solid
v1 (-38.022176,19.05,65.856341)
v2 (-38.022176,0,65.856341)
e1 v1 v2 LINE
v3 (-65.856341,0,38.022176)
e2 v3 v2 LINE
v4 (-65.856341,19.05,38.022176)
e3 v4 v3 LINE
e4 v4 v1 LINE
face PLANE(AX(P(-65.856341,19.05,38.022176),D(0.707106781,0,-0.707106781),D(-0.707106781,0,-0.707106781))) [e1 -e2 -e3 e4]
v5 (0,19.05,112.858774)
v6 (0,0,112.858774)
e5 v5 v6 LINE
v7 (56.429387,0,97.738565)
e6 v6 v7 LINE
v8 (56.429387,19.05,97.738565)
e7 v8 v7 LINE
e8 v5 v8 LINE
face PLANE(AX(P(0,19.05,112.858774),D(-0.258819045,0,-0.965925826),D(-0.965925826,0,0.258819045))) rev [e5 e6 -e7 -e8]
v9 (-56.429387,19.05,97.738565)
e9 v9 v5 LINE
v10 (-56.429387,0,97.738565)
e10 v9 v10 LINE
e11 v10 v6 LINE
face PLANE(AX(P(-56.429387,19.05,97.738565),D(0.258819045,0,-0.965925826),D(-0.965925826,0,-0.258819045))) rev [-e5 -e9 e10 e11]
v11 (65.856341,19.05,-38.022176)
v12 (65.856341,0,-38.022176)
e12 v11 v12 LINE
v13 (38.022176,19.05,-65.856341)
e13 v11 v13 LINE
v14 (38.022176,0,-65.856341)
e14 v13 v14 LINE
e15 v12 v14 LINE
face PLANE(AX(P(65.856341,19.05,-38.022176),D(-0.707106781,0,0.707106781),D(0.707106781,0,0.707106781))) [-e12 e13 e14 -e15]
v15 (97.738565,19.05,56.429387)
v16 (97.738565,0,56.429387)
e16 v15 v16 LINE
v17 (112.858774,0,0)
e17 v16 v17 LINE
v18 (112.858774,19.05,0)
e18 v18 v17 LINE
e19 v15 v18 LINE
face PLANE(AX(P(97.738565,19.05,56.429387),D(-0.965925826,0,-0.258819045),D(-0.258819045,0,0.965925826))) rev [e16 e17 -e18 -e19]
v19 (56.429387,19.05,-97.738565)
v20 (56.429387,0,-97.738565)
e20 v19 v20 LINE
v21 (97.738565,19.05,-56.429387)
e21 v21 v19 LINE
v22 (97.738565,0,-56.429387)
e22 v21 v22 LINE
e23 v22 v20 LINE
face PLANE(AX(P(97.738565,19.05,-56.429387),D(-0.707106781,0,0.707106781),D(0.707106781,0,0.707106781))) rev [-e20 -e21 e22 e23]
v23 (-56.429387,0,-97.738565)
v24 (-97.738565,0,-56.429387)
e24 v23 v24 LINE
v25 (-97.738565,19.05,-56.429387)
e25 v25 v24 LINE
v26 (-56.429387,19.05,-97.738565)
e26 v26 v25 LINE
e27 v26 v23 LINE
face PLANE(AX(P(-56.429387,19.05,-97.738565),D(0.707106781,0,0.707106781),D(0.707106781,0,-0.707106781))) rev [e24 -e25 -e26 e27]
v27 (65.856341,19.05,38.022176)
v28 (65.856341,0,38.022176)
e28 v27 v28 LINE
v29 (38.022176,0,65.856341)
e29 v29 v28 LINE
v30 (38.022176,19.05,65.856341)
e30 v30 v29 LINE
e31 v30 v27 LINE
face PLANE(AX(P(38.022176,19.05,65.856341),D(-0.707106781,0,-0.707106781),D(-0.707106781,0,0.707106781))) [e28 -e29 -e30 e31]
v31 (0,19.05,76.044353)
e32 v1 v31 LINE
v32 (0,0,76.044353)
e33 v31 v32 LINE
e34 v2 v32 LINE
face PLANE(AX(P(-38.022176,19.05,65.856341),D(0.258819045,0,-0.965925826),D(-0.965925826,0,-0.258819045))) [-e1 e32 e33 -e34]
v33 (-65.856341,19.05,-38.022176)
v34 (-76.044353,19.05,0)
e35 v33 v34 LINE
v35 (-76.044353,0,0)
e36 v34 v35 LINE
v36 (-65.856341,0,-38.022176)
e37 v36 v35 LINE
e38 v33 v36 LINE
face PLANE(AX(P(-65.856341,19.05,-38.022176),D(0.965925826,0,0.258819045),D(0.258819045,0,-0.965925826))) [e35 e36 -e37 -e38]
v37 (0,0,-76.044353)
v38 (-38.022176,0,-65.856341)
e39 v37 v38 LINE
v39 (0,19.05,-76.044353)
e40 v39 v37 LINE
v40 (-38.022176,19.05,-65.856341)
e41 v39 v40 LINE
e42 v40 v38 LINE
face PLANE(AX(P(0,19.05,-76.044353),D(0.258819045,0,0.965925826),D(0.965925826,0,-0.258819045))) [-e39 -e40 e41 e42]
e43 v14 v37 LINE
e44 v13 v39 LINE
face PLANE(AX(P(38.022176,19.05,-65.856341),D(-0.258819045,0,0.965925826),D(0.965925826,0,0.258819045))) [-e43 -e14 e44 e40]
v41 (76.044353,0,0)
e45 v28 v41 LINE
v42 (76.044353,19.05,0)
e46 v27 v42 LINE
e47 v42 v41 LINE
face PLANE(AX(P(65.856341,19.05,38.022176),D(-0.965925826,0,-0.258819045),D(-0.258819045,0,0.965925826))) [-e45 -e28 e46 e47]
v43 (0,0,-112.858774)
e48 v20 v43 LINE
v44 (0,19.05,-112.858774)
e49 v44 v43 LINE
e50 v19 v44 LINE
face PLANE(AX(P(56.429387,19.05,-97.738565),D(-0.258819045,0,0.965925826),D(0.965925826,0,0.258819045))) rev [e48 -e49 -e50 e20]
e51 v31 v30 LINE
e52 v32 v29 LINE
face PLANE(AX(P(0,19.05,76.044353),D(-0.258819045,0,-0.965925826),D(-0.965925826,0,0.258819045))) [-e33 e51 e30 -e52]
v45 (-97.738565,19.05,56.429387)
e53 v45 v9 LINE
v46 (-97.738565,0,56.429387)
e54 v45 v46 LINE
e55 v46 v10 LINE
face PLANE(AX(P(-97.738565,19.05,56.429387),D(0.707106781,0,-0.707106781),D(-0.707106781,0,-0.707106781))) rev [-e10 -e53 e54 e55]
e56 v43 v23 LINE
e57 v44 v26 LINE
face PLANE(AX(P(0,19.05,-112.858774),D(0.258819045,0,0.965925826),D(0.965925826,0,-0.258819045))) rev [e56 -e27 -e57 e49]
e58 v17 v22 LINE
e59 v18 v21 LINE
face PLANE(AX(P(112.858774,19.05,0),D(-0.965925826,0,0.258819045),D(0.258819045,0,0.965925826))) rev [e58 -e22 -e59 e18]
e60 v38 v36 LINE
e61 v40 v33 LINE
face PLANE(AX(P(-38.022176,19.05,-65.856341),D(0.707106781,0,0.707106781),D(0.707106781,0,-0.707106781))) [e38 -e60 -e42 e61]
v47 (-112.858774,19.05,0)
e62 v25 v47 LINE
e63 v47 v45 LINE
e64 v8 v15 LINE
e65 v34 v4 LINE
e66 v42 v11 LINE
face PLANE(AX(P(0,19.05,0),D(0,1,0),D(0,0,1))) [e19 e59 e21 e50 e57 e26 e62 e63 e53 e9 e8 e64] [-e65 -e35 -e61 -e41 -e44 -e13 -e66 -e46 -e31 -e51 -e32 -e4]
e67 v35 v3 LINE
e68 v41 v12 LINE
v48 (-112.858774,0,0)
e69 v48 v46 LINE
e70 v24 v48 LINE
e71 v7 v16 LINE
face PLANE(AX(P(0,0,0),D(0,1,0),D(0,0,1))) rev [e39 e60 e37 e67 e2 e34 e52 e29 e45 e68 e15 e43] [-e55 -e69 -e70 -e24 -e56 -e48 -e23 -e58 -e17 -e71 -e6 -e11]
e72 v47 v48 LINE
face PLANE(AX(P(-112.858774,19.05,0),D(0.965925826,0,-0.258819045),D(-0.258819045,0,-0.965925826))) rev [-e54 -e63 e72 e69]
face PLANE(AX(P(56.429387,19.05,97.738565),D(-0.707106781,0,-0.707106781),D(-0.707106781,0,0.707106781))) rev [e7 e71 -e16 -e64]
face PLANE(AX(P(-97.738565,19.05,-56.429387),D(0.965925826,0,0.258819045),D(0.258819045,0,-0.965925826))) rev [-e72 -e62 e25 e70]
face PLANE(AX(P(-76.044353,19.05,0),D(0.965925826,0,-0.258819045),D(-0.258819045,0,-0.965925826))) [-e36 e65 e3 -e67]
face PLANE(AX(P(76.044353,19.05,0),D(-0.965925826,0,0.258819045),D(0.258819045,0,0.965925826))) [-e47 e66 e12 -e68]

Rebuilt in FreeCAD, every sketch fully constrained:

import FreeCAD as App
import Part
import Sketcher

V = App.Vector
Q = App.Units.Quantity


def add_polygon(sketch, points):
    """Adds a closed chain of lines whose ends are joined by coincident constraints."""
    first, n = sketch.GeometryCount, len(points)
    for a, b in zip(points, points[1:] + points[:1]):
        sketch.addGeometry(Part.LineSegment(App.Vector(*a, 0), App.Vector(*b, 0)), False)
    for i in range(n):
        sketch.addConstraint(Sketcher.Constraint("Coincident", first + i, 2, first + (i + 1) % n, 1))

doc = App.newDocument("Part")
body = doc.addObject("PartDesign::Body", "Body")

# Sketch on XZ plane
sketch1 = doc.addObject("Sketcher::SketchObject", "Sketch")
body.addObject(sketch1)
sketch1.AttachmentSupport = (doc.XZ_Plane, [""])
sketch1.MapMode = "FlatFace"
add_polygon(sketch1, [(113, 0), (98, -56), (56, -98), (0, -113), (-56, -98), (-98, -56), (-113, 0), (-98, 56), (-56, 98), (0, 113), (56, 98), (98, 56)])  # lines 0-11
add_polygon(sketch1, [(66, -38), (76, 0), (66, 38), (38, 66), (0, 76), (-38, 66), (-66, 38), (-76, 0), (-66, -38), (-38, -66), (0, -76), (38, -66)])  # lines 12-23
sketch1.addConstraint([
    Sketcher.Constraint("Symmetric", 0, 2, 6, 2, -1, 1),
    Sketcher.Constraint("Symmetric", 1, 2, 7, 2, -1, 1),
    Sketcher.Constraint("Symmetric", 2, 2, 8, 2, -1, 1),
    Sketcher.Constraint("Symmetric", 3, 2, 9, 2, -1, 1),
    Sketcher.Constraint("Symmetric", 4, 2, 10, 2, -1, 1),
    Sketcher.Constraint("Symmetric", 5, 2, 11, 2, -1, 1),
    Sketcher.Constraint("Symmetric", 12, 2, 18, 2, -1, 1),
    Sketcher.Constraint("Symmetric", 13, 2, 19, 2, -1, 1),
    Sketcher.Constraint("Symmetric", 14, 2, 20, 2, -1, 1),
    Sketcher.Constraint("Symmetric", 15, 2, 21, 2, -1, 1),
    Sketcher.Constraint("Symmetric", 16, 2, 22, 2, -1, 1),
    Sketcher.Constraint("Symmetric", 17, 2, 23, 2, -1, 1),
    Sketcher.Constraint("Symmetric", 1, 2, 3, 2, -2),
    Sketcher.Constraint("Symmetric", 0, 2, 4, 2, -2),
    Sketcher.Constraint("Symmetric", 14, 2, 16, 2, -2),
    Sketcher.Constraint("Symmetric", 13, 2, 17, 2, -2),
    Sketcher.Constraint("PointOnObject", 2, 2, -2),
    Sketcher.Constraint("PointOnObject", 5, 2, -1),
    Sketcher.Constraint("PointOnObject", 12, 2, -1),
    Sketcher.Constraint("PointOnObject", 15, 2, -2),
    Sketcher.Constraint("Perpendicular", 0, 3),
    Sketcher.Constraint("Perpendicular", 1, 4),
    Sketcher.Constraint("Perpendicular", 9, 12),
    Sketcher.Constraint("Parallel", 10, 14),
    Sketcher.Constraint("Perpendicular", 12, 15),
    Sketcher.Constraint("Equal", 0, 1),
    Sketcher.Constraint("Equal", 1, 2),
    Sketcher.Constraint("Equal", 13, 14),
    Sketcher.Constraint("Equal", 14, 15),
    Sketcher.Constraint("Angle", 0, Q("-105 deg")),
    Sketcher.Constraint("Distance", 0, Q("2.3 in")),
    Sketcher.Constraint("DistanceX", -1, 1, 13, 2, 65.856341),
])
pad1 = doc.addObject("PartDesign::Pad", "Pad")
body.addObject(pad1)
pad1.Profile = sketch1
pad1.Length = Q("0.75 in")
pad1.Reversed = True

doc.recompute()
